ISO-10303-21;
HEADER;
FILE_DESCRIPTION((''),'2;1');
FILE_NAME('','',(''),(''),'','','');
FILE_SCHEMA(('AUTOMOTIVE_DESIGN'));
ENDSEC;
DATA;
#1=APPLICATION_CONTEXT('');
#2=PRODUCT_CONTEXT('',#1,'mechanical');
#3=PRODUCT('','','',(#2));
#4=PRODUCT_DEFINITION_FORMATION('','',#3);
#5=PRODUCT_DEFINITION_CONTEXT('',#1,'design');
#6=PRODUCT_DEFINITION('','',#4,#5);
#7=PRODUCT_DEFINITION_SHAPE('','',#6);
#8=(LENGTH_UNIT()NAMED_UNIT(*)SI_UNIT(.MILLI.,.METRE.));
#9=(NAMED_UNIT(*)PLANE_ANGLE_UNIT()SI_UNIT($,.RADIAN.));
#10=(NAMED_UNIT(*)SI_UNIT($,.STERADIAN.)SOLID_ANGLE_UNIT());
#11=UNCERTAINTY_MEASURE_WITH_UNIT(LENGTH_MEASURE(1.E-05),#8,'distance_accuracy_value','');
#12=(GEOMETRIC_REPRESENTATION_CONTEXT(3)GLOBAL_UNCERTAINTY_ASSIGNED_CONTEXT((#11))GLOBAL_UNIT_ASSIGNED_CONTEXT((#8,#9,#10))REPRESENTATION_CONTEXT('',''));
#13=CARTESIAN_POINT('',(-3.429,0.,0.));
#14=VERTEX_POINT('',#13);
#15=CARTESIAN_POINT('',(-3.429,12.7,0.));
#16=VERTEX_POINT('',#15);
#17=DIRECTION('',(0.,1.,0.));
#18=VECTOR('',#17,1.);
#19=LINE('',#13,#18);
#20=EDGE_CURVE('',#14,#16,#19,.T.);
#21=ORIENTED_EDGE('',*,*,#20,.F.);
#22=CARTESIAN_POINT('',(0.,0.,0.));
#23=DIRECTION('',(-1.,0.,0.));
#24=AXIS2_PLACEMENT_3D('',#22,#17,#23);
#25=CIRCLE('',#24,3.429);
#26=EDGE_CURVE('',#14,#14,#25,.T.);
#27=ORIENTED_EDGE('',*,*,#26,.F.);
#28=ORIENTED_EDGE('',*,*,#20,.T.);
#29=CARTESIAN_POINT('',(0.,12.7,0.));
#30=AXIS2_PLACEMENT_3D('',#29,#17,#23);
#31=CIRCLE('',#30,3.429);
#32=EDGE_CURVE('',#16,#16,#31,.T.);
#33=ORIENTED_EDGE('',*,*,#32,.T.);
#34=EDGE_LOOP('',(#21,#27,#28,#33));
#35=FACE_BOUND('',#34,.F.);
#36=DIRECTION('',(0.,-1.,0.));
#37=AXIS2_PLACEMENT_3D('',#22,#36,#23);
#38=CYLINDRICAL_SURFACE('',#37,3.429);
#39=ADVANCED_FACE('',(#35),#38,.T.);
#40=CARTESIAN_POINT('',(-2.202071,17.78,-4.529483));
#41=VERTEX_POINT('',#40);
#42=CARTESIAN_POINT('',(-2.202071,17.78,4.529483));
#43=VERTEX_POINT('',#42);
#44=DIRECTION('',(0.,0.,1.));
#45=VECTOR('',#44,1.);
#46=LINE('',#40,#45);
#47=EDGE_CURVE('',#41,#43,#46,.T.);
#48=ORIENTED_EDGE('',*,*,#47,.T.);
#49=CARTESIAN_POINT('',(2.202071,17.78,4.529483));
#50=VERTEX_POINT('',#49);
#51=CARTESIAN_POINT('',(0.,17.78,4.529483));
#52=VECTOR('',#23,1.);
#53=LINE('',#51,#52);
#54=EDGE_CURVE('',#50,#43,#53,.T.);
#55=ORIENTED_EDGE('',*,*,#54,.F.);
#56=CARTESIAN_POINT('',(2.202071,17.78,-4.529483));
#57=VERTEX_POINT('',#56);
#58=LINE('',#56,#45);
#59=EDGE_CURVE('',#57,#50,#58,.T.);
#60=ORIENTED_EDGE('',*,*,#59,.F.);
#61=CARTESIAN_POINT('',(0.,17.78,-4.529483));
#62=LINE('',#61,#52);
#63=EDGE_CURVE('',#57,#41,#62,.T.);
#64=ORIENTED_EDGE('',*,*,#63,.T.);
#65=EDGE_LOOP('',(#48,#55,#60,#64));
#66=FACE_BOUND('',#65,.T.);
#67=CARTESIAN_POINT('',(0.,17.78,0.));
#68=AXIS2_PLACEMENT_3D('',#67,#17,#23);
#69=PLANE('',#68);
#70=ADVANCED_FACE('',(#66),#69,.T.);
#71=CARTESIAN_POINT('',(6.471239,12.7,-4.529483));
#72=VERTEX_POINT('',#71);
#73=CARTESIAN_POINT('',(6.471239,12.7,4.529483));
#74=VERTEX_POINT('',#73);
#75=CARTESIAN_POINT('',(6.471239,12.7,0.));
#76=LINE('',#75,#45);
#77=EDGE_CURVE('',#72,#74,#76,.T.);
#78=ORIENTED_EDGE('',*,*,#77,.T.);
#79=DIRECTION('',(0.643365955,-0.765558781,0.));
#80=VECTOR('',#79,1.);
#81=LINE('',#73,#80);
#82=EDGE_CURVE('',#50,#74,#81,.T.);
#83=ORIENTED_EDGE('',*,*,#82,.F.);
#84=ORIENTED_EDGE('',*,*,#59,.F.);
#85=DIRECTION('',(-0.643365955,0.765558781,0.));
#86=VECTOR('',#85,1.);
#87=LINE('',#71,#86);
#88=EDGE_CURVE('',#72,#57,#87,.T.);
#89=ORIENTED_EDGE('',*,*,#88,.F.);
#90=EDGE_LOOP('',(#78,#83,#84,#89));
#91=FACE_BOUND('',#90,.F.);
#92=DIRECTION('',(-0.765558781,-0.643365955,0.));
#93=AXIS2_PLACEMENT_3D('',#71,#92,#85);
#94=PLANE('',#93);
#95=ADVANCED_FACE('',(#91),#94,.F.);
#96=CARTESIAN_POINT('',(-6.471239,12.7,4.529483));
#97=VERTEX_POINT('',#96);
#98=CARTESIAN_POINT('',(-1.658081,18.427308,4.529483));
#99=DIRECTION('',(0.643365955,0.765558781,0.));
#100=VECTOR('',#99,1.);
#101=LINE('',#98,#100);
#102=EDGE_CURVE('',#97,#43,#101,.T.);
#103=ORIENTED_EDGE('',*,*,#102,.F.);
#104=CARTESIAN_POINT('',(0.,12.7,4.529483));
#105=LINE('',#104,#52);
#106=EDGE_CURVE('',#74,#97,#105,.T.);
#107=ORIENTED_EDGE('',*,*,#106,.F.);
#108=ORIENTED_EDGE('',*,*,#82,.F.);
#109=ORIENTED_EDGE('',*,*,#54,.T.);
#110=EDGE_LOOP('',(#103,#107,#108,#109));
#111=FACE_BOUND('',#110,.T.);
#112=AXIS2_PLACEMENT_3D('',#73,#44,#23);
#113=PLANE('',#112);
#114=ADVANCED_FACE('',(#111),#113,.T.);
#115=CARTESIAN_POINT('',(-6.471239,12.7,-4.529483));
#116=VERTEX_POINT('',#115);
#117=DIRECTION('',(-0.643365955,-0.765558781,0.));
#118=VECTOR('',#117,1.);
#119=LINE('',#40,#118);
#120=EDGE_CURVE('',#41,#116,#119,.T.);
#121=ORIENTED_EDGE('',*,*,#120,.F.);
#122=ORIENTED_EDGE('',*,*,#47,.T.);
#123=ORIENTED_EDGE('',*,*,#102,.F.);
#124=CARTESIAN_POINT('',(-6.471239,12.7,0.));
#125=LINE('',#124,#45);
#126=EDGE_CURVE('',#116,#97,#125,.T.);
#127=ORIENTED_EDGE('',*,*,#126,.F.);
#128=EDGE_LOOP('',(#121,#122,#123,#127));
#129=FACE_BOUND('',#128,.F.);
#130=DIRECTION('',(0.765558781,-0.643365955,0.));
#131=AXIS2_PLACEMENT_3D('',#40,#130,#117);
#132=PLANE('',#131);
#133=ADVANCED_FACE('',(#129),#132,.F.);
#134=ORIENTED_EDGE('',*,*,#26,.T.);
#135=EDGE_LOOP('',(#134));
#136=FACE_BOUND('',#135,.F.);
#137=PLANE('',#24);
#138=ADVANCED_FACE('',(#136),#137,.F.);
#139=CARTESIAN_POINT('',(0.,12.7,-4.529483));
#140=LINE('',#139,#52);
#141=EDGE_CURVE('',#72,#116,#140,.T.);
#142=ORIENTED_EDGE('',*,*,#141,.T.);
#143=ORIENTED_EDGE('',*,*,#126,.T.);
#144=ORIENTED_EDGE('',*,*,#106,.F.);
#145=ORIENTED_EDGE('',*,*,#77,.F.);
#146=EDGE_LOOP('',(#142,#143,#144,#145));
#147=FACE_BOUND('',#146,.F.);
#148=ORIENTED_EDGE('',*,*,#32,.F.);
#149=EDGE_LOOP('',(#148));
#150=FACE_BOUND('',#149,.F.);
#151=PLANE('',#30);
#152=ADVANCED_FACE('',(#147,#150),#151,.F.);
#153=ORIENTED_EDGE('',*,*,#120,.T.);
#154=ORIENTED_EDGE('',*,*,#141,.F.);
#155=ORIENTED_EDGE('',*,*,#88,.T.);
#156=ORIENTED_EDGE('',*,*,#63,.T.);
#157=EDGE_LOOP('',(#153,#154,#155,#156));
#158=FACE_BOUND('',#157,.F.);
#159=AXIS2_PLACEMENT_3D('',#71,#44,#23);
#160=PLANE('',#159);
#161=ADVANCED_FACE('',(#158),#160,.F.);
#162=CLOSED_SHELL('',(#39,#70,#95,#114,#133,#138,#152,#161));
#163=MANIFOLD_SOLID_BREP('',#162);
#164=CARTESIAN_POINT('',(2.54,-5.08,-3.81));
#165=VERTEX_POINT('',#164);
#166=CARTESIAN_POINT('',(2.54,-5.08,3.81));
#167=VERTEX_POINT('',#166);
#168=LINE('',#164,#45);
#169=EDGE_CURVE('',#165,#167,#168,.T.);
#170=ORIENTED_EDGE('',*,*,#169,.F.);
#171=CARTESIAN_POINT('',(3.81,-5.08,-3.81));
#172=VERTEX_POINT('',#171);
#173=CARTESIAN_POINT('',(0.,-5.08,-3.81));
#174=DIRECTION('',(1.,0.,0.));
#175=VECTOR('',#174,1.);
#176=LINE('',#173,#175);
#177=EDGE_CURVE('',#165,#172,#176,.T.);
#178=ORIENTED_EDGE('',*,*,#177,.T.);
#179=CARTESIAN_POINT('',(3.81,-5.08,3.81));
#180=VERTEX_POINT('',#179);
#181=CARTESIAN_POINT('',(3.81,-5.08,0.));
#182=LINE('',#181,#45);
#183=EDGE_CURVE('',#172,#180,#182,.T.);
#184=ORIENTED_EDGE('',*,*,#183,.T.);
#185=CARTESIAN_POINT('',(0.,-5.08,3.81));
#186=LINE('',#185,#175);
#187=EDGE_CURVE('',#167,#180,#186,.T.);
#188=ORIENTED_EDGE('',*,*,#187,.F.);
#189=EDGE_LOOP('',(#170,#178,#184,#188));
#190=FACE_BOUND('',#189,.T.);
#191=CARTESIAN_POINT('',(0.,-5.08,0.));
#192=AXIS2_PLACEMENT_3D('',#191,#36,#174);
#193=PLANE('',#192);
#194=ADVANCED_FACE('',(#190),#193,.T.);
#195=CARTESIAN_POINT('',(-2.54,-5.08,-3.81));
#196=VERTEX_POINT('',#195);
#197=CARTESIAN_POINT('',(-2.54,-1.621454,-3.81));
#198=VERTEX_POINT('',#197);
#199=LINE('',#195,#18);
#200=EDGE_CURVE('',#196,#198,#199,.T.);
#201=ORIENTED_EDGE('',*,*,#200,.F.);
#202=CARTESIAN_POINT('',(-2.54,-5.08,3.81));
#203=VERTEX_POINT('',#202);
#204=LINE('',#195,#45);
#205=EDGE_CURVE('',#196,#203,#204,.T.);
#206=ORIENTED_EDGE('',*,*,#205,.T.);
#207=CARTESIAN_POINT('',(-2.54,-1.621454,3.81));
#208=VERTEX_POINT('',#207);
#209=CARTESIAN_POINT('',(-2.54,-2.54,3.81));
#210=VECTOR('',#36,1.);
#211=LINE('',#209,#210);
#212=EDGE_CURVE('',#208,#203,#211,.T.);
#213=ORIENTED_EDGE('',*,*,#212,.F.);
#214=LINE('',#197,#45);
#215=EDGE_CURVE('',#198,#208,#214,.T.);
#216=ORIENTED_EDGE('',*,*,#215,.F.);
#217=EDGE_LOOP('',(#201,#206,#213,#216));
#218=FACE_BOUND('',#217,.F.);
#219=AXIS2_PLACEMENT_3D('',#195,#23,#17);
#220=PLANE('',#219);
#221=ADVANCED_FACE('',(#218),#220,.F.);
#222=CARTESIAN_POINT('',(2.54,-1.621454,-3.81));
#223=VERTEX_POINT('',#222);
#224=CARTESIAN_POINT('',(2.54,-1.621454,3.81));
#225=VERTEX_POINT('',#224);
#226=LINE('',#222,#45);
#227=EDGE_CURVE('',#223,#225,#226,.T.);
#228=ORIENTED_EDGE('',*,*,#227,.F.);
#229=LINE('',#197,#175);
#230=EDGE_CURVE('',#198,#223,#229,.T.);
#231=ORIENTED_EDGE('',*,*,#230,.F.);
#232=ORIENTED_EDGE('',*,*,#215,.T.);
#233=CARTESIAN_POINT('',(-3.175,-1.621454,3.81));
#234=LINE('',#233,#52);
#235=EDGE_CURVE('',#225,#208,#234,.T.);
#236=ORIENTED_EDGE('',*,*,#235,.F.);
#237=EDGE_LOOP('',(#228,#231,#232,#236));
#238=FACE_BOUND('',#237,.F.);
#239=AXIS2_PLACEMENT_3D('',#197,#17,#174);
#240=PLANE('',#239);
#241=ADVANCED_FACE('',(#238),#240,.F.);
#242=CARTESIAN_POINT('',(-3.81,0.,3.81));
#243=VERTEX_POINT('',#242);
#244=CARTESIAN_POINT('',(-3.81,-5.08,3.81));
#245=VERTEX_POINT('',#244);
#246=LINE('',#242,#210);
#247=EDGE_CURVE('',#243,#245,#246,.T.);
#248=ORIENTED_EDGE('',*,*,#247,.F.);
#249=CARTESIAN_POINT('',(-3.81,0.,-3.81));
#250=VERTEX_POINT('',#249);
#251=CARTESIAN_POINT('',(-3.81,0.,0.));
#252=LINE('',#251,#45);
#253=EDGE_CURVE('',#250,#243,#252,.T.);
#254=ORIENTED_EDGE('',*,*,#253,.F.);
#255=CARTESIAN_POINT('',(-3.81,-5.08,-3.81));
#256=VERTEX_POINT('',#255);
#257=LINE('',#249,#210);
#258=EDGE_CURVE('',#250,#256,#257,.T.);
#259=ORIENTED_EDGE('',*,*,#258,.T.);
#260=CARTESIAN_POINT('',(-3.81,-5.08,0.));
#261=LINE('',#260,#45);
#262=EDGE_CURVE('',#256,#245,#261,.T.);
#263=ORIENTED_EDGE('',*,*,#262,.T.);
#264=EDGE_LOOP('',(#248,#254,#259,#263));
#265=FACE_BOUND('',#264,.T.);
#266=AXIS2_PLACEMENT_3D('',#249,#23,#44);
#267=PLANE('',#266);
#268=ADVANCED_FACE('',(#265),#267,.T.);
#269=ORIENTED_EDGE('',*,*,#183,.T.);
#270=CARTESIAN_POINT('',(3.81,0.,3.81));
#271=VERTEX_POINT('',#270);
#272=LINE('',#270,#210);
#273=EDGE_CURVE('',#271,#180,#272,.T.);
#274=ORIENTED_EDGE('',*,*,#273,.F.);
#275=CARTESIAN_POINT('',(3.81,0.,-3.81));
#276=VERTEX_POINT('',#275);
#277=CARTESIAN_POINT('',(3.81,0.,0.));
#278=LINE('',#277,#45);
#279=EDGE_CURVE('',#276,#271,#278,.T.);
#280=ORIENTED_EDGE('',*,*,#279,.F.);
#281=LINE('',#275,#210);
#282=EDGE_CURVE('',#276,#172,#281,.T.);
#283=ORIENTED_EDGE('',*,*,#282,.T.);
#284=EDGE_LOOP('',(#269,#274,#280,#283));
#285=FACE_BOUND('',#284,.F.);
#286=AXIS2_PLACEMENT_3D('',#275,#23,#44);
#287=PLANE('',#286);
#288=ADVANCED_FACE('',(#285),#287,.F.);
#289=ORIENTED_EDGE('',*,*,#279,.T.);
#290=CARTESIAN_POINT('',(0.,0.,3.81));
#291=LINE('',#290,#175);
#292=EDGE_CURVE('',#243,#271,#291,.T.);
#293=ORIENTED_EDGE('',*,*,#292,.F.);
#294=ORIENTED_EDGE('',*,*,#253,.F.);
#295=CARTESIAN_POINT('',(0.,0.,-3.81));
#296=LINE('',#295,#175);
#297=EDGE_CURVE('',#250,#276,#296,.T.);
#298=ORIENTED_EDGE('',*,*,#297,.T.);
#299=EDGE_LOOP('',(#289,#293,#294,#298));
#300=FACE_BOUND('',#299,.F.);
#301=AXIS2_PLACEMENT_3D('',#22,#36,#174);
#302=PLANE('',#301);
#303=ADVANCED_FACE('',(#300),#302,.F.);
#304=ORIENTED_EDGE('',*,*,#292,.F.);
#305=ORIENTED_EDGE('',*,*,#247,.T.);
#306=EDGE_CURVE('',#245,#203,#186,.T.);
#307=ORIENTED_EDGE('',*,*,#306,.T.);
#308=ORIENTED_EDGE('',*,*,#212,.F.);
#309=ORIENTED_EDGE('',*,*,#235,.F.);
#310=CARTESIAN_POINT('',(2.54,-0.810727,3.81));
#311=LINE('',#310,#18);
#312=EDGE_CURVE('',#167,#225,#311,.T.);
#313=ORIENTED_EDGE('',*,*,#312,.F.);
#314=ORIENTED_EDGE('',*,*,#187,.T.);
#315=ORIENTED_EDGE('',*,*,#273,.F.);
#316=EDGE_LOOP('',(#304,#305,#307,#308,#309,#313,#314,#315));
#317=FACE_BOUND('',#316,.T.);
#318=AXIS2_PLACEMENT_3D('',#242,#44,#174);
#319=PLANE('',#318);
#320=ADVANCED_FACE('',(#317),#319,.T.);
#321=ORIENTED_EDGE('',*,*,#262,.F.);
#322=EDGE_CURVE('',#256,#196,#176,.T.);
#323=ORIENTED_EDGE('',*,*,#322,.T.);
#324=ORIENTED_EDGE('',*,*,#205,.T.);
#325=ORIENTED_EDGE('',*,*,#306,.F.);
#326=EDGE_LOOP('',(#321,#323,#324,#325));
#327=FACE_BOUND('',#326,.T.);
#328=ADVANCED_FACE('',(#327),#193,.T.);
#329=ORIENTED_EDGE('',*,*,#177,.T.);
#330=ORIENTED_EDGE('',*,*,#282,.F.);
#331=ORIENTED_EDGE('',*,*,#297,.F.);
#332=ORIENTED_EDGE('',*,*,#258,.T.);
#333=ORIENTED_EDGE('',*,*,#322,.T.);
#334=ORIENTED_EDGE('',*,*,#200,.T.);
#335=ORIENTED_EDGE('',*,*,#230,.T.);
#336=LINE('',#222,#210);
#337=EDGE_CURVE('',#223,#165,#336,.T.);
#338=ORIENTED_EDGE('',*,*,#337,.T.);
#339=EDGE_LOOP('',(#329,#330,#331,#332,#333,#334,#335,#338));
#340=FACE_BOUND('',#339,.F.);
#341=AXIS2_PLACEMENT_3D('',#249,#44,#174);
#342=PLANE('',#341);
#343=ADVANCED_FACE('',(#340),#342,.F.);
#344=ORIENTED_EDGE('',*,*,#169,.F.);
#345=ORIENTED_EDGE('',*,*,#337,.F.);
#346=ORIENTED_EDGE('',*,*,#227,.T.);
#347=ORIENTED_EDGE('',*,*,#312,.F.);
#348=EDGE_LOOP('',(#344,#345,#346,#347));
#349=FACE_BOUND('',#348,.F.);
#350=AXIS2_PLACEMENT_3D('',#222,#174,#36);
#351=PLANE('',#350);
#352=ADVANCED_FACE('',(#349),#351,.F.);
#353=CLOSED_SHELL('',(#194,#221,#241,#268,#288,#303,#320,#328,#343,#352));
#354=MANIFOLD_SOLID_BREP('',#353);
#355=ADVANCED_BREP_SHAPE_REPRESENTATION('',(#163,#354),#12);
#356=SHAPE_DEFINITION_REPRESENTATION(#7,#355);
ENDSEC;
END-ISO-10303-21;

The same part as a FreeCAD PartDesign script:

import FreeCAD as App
import Part
import Sketcher

V = App.Vector
Q = App.Units.Quantity

doc = App.newDocument("Part")
body = doc.addObject("PartDesign::Body", "Body")

# Sketch on XZ plane
sketch1 = body.newObject("Sketcher::SketchObject", "Sketch")
sketch1.AttachmentSupport = (doc.getObject("XZ_Plane"), [""])
sketch1.MapMode = "FlatFace"
sketch1.addGeometry([
    Part.LineSegment(V(-4, 4, 0), V(-4, -4, 0)),
    Part.LineSegment(V(-4, -4, 0), V(4, -4, 0)),
    Part.LineSegment(V(4, -4, 0), V(4, 4, 0)),
    Part.LineSegment(V(4, 4, 0), V(-4, 4, 0)),
], False)
sketch1.addConstraint([
    Sketcher.Constraint("Coincident", 0, 2, 1, 1),
    Sketcher.Constraint("Coincident", 1, 2, 2, 1),
    Sketcher.Constraint("Coincident", 2, 2, 3, 1),
    Sketcher.Constraint("Coincident", 3, 2, 0, 1),
    Sketcher.Constraint("Vertical", 0),
    Sketcher.Constraint("Horizontal", 1),
    Sketcher.Constraint("Vertical", 2),
    Sketcher.Constraint("Horizontal", 3),
    Sketcher.Constraint("Symmetric", 0, 2, 2, 2, -1, 1),
    Sketcher.Constraint("Equal", 3, 0),
    Sketcher.Constraint("DistanceX", 1, 1, 1, 2, Q("0.3 in")),
])
pad1 = body.newObject("PartDesign::Pad", "Pad")
pad1.Profile = sketch1
pad1.Length = Q("0.2 in")

# Sketch on XY plane
sketch2 = body.newObject("Sketcher::SketchObject", "Sketch001")
sketch2.AttachmentSupport = (doc.getObject("XY_Plane"), [""])
sketch2.MapMode = "FlatFace"
sketch2.AttachmentOffset = App.Placement(V(0, 0, -0.15 * 25.4), App.Rotation())
sketch2.addGeometry([
    Part.LineSegment(V(-2.5, -1.6, 0), V(2.5, -1.6, 0)),
    Part.LineSegment(V(2.5, -1.6, 0), V(2.5, -5.1, 0)),
    Part.LineSegment(V(2.5, -5.1, 0), V(-2.5, -5.1, 0)),
    Part.LineSegment(V(-2.5, -5.1, 0), V(-2.5, -1.6, 0)),
], False)
sketch2.addConstraint([
    Sketcher.Constraint("Coincident", 0, 2, 1, 1),
    Sketcher.Constraint("Coincident", 1, 2, 2, 1),
    Sketcher.Constraint("Coincident", 2, 2, 3, 1),
    Sketcher.Constraint("Coincident", 3, 2, 0, 1),
    Sketcher.Constraint("Horizontal", 0),
    Sketcher.Constraint("Vertical", 1),
    Sketcher.Constraint("Horizontal", 2),
    Sketcher.Constraint("Vertical", 3),
    Sketcher.Constraint("DistanceX", 0, 1, 0, 2, Q("0.2 in")),
    Sketcher.Constraint("DistanceX", -1, 1, 0, 2, Q("0.1 in")),
    Sketcher.Constraint("DistanceY", 1, 2, -1, 1, Q("0.2 in")),
    Sketcher.Constraint("DistanceY", 1, 2, 1, 1, 3.458546),
])
pocket1 = body.newObject("PartDesign::Pocket", "Pocket")
pocket1.Profile = sketch2
pocket1.Length = Q("1 in")
pocket1.Reversed = True
body2 = doc.addObject("PartDesign::Body", "Body001")

# Sketch on XZ plane
sketch3 = body2.newObject("Sketcher::SketchObject", "Sketch002")
sketch3.AttachmentSupport = (doc.getObject("XZ_Plane001"), [""])
sketch3.MapMode = "FlatFace"
sketch3.addGeometry(Part.Circle(V(0, 0, 0), V(0, 0, 1), 3.4), False)
sketch3.addConstraint([
    Sketcher.Constraint("Coincident", 0, 3, -1, 1),
    Sketcher.Constraint("Diameter", 0, Q("0.27 in")),
])
pad2 = body2.newObject("PartDesign::Pad", "Pad001")
pad2.Profile = sketch3
pad2.Length = Q("0.5 in")
pad2.Reversed = True

# Sketch on XZ plane
sketch4 = body2.newObject("Sketcher::SketchObject", "Sketch003")
sketch4.AttachmentSupport = (doc.getObject("XZ_Plane001"), [""])
sketch4.MapMode = "FlatFace"
sketch4.AttachmentOffset = App.Placement(V(0, 0, -0.5 * 25.4), App.Rotation())
sketch4.addGeometry([
    Part.LineSegment(V(6, 5, 0), V(6, -5, 0)),
    Part.LineSegment(V(6, -5, 0), V(-6, -5, 0)),
    Part.LineSegment(V(-6, -5, 0), V(-6, 5, 0)),
    Part.LineSegment(V(-6, 5, 0), V(6, 5, 0)),
], False)
sketch4.addConstraint([
    Sketcher.Constraint("Coincident", 0, 2, 1, 1),
    Sketcher.Constraint("Coincident", 1, 2, 2, 1),
    Sketcher.Constraint("Coincident", 2, 2, 3, 1),
    Sketcher.Constraint("Coincident", 3, 2, 0, 1),
    Sketcher.Constraint("Vertical", 0),
    Sketcher.Constraint("Horizontal", 1),
    Sketcher.Constraint("Vertical", 2),
    Sketcher.Constraint("Horizontal", 3),
    Sketcher.Constraint("Symmetric", 0, 2, 2, 2, -1, 1),
    Sketcher.Constraint("DistanceX", 1, 2, 1, 1, 12.942478),
    Sketcher.Constraint("DistanceY", 0, 2, 0, 1, 9.058966),
])
pad3 = body2.newObject("PartDesign::Pad", "Pad002")
pad3.Profile = sketch4
pad3.Length = Q("0.2 in")
pad3.Reversed = True

# Sketch on XY plane
sketch5 = body2.newObject("Sketcher::SketchObject", "Sketch004")
sketch5.AttachmentSupport = (doc.getObject("XY_Plane001"), [""])
sketch5.MapMode = "FlatFace"
sketch5.AttachmentOffset = App.Placement(V(0, 0, -4.529483), App.Rotation())
sketch5.addGeometry([
    Part.LineSegment(V(-2.2, 17.8, 0), V(-6.5, 12.7, 0)),  # 0
    Part.LineSegment(V(-6.5, 12.7, 0), V(-6.5, 17.8, 0)),  # 1
    Part.LineSegment(V(-6.5, 17.8, 0), V(-2.2, 17.8, 0)),  # 2
    Part.LineSegment(V(6.5, 17.8, 0), V(6.5, 12.7, 0)),  # 3
    Part.LineSegment(V(6.5, 12.7, 0), V(2.2, 17.8, 0)),  # 4
    Part.LineSegment(V(2.2, 17.8, 0), V(6.5, 17.8, 0)),  # 5
], False)
sketch5.addConstraint([
    Sketcher.Constraint("Coincident", 0, 2, 1, 1),
    Sketcher.Constraint("Coincident", 1, 2, 2, 1),
    Sketcher.Constraint("Coincident", 2, 2, 0, 1),
    Sketcher.Constraint("Coincident", 3, 2, 4, 1),
    Sketcher.Constraint("Coincident", 4, 2, 5, 1),
    Sketcher.Constraint("Coincident", 5, 2, 3, 1),
    Sketcher.Constraint("Vertical", 1),
    Sketcher.Constraint("Horizontal", 2),
    Sketcher.Constraint("Vertical", 3),
    Sketcher.Constraint("Horizontal", 5),
    Sketcher.Constraint("Symmetric", 0, 2, 3, 2, -2),
    Sketcher.Constraint("Symmetric", 2, 2, 4, 2, -2),
    Sketcher.Constraint("DistanceY", 1, 1, 1, 2, Q("0.2 in")),
    Sketcher.Constraint("DistanceY", -1, 1, 0, 2, Q("0.5 in")),
    Sketcher.Constraint("DistanceX", 2, 1, 2, 2, 4.269168),
    Sketcher.Constraint("DistanceX", 0, 2, -1, 1, 6.471239),
])
pocket2 = body2.newObject("PartDesign::Pocket", "Pocket001")
pocket2.Profile = sketch5
pocket2.Length = Q("1 in")
pocket2.Reversed = True

doc.recompute()
